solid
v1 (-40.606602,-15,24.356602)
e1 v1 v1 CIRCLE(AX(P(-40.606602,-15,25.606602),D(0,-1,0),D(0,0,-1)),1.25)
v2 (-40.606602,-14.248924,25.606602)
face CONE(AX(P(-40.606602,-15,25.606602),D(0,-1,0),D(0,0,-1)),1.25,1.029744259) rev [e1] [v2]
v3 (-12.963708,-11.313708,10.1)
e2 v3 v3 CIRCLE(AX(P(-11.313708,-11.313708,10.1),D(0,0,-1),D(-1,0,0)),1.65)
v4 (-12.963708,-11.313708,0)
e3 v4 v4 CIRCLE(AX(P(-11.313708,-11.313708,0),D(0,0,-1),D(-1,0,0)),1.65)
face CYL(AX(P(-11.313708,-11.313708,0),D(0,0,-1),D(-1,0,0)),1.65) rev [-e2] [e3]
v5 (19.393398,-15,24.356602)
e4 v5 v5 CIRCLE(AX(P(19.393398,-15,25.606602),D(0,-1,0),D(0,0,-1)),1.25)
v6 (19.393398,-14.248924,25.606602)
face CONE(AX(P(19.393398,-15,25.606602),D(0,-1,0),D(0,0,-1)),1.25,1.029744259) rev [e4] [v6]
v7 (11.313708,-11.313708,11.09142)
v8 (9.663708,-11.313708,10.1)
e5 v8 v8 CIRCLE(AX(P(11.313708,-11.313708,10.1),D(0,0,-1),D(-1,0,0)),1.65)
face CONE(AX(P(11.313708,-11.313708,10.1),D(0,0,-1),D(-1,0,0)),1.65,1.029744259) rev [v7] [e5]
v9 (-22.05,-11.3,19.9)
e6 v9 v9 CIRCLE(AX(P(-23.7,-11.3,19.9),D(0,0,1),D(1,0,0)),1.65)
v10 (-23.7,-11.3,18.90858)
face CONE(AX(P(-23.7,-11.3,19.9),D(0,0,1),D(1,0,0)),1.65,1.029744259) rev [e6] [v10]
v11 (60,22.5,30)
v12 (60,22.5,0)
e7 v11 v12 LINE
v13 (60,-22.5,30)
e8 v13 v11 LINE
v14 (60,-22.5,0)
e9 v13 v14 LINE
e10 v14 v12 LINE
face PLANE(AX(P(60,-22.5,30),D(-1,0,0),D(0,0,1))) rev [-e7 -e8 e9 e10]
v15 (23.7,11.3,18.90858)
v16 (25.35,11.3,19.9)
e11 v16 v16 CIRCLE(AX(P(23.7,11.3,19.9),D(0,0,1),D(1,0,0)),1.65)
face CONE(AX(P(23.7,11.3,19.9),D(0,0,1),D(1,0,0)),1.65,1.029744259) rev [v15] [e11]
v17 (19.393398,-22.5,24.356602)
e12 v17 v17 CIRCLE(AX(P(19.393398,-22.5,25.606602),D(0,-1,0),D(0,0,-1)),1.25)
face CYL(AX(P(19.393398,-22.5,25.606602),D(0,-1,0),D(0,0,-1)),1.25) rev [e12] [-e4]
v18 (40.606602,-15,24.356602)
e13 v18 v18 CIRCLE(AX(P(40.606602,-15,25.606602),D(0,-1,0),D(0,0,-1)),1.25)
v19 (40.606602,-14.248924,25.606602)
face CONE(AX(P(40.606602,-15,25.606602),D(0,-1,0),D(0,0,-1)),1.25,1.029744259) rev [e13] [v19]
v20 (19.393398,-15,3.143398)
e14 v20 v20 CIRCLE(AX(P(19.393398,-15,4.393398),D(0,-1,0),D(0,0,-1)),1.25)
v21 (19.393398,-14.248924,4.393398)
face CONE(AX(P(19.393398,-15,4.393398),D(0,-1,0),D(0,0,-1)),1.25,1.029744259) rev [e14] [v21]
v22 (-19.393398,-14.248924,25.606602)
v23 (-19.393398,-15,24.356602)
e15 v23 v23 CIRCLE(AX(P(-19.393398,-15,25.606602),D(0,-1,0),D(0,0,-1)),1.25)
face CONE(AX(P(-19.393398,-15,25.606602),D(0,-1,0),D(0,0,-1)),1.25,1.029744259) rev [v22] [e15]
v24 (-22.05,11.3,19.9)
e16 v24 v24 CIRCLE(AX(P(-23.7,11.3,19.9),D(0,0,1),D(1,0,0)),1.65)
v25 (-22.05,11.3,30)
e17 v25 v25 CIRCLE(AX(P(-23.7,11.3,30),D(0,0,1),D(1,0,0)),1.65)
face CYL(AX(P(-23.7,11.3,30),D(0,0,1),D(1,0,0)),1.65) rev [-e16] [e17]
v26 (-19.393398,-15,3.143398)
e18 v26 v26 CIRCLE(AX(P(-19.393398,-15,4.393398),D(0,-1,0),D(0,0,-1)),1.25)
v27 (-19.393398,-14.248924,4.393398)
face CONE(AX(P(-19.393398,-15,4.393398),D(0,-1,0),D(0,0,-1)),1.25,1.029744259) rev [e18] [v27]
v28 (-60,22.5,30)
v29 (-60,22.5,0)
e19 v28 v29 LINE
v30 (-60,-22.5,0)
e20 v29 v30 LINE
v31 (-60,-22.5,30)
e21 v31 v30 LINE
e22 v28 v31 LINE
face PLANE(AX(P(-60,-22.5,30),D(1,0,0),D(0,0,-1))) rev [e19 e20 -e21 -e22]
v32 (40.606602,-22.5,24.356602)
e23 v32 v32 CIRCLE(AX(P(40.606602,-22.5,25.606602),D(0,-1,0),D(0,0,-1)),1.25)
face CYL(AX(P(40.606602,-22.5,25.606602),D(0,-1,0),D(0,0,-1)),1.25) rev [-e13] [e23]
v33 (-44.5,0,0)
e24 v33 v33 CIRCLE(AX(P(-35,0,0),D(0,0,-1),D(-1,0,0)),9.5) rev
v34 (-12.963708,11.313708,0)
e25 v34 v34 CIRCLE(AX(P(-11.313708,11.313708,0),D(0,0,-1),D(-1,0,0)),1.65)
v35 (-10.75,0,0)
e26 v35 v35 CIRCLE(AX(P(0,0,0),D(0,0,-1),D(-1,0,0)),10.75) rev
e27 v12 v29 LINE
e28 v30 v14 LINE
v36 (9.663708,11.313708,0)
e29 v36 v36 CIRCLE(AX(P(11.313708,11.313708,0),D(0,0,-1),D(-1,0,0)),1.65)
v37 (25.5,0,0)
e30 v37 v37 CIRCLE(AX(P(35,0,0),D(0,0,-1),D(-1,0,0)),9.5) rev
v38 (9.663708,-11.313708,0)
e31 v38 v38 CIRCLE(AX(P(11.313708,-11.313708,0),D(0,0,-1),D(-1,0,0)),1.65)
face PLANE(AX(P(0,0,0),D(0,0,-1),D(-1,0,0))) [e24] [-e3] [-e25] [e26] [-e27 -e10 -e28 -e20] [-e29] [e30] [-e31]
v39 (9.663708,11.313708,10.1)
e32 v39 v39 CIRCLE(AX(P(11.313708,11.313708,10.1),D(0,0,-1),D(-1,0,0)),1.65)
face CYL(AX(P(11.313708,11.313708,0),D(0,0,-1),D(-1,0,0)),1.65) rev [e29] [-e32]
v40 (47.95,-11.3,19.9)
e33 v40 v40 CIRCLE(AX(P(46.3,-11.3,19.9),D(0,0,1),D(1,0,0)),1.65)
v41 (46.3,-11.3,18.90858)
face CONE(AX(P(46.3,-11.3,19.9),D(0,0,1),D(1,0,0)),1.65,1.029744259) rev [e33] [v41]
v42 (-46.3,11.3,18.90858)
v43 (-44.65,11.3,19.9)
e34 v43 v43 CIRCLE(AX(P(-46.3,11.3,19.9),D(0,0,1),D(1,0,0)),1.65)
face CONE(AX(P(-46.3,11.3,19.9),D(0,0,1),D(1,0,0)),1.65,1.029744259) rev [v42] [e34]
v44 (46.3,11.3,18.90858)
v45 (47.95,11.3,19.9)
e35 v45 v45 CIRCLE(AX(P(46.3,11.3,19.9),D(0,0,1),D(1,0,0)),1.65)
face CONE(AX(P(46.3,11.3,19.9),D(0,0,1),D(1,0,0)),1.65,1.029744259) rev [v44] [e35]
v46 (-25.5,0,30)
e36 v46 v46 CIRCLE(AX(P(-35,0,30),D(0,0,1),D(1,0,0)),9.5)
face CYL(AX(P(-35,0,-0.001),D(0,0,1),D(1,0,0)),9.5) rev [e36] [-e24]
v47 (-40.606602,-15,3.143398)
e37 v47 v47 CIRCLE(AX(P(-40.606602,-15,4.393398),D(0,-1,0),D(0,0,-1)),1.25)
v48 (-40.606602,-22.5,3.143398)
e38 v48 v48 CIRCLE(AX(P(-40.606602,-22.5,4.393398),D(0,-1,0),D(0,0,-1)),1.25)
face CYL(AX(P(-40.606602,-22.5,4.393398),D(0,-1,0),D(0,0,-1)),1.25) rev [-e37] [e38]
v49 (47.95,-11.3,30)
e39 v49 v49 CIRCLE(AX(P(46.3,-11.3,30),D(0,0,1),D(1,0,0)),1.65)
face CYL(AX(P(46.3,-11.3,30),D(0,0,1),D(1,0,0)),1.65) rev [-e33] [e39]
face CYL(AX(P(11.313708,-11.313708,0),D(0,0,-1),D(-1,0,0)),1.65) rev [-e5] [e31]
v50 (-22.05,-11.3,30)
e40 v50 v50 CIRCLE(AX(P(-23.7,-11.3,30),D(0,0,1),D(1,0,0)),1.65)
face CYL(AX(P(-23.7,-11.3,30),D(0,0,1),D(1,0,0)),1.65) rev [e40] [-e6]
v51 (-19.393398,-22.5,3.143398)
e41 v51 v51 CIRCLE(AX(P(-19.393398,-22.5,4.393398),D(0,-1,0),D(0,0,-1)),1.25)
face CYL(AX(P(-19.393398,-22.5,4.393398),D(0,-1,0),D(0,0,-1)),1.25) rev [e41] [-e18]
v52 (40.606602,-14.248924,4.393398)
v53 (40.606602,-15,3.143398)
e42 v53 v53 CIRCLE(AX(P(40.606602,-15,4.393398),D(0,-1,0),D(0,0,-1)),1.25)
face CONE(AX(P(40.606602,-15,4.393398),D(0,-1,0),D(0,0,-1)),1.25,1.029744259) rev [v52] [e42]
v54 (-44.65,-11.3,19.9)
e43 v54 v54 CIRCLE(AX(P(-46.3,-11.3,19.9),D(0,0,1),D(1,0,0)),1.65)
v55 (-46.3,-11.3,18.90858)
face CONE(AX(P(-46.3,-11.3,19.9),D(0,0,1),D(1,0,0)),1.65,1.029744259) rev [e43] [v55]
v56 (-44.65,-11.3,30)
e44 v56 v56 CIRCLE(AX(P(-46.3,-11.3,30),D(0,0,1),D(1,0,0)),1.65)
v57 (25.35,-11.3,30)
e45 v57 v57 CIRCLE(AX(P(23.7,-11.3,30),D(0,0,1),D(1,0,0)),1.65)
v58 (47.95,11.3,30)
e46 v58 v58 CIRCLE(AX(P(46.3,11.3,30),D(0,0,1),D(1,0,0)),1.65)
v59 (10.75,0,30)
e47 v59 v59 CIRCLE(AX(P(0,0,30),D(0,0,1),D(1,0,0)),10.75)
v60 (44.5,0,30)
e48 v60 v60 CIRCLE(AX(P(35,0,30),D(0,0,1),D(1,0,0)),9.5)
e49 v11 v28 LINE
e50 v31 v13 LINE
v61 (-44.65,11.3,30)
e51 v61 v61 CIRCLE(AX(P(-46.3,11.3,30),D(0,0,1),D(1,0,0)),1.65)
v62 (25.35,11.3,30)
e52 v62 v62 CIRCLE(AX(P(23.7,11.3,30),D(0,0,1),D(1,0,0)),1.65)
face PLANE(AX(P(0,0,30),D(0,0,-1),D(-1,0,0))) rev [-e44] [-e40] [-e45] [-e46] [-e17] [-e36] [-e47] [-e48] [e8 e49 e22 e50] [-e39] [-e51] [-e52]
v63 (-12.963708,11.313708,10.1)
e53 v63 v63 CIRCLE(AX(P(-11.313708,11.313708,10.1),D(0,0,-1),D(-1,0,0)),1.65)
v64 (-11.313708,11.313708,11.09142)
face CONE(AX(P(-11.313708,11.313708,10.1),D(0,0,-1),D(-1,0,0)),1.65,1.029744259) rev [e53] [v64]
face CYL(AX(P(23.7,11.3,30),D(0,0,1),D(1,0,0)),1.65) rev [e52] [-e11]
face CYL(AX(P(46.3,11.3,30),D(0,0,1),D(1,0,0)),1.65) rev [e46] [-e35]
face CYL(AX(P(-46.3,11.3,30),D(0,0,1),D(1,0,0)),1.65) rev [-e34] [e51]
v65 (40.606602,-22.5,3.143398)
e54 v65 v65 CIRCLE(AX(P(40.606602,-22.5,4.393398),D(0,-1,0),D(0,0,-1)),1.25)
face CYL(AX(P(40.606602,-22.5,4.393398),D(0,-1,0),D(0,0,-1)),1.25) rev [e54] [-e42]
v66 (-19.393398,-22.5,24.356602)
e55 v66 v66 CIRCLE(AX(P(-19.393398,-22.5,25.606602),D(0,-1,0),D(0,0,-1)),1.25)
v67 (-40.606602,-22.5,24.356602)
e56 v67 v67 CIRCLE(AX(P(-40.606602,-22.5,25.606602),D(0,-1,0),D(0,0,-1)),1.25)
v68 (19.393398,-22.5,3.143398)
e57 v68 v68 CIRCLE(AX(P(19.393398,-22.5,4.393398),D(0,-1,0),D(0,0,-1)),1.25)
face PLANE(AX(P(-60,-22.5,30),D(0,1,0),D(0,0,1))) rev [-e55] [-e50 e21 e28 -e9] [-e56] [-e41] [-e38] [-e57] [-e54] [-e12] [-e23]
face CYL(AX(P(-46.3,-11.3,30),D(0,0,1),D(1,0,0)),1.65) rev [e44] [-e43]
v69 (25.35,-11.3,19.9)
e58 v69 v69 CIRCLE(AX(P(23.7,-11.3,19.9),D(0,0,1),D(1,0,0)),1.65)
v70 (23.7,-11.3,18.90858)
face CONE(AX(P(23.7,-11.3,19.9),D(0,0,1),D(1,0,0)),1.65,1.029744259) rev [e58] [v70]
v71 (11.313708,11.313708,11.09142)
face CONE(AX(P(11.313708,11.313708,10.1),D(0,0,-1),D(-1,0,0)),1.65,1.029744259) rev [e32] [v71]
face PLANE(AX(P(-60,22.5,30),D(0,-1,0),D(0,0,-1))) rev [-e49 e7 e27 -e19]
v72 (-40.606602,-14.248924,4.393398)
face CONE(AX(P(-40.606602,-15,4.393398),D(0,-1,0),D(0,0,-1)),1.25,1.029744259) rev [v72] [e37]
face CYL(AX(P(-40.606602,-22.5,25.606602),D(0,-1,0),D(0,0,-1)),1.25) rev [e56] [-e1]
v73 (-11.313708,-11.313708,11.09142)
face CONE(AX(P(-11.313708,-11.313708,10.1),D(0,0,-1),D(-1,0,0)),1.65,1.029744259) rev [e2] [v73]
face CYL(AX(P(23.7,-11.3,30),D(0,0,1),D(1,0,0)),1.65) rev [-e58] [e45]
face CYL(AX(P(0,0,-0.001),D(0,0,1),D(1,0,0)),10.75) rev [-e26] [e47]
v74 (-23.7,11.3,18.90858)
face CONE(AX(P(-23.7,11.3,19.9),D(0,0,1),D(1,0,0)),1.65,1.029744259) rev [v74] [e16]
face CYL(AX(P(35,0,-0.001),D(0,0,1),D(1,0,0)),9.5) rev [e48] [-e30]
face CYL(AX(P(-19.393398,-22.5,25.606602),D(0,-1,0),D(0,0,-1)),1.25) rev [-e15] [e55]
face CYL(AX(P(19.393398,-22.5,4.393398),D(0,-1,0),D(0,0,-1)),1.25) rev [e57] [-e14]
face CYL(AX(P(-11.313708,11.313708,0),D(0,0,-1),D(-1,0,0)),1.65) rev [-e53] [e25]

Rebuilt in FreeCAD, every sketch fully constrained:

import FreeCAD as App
import Part
import Sketcher
from FreeCAD import Vector


def add_polygon(sketch, points):
    """Adds a closed chain of lines whose ends are joined by coincident constraints."""
    first, n = sketch.GeometryCount, len(points)
    for a, b in zip(points, points[1:] + points[:1]):
        sketch.addGeometry(Part.LineSegment(App.Vector(*a, 0), App.Vector(*b, 0)), False)
    for i in range(n):
        sketch.addConstraint(Sketcher.Constraint("Coincident", first + i, 2, first + (i + 1) % n, 1))

doc = App.newDocument("Part")
params = doc.addObject("Spreadsheet::Sheet", "Params")
for row, (alias, value) in enumerate([
    ("sketch1_width", "120 mm"),
    ("sketch1_height", "45 mm"),
    ("pad1_length", "30 mm"),
    ("sketch2_diameter", "19 mm"),
    ("sketch3_diameter", "19 mm"),
    ("sketch4_diameter", "21.5 mm"),
    ("sketch5_diameter", "3.3 mm"),
    ("hole_diameter", "3.3 mm"),
    ("hole_depth", "10.1 mm"),
    ("sketch6_diameter", "3.3 mm"),
    ("hole2_diameter", "3.3 mm"),
    ("hole2_depth", "10.1 mm"),
    ("sketch7_diameter", "2.5 mm"),
    ("hole3_diameter", "2.5 mm"),
    ("hole3_depth", "7.5 mm"),
], start=1):
    params.set(f"A{row}", alias)
    params.set(f"B{row}", "=" + value)
    params.setAlias(f"B{row}", alias)

body = doc.addObject("PartDesign::Body", "Body")

sketch1 = body.newObject("Sketcher::SketchObject", "Sketch")
sketch1.AttachmentSupport = (doc.getObject("XY_Plane"), [""])
sketch1.MapMode = "FlatFace"
add_polygon(sketch1, [(-60, 22.5), (-60, -22.5), (60, -22.5), (60, 22.5)])
sketch1.addConstraint(Sketcher.Constraint("Vertical", 0))
sketch1.addConstraint(Sketcher.Constraint("Horizontal", 1))
sketch1.addConstraint(Sketcher.Constraint("Vertical", 2))
sketch1.addConstraint(Sketcher.Constraint("Horizontal", 3))
sketch1.addConstraint(Sketcher.Constraint("Symmetric", 0, 2, 2, 2, -1, 1))
sketch1.addConstraint(Sketcher.Constraint("DistanceX", 1, 1, 1, 2, 120.0))
sketch1.addConstraint(Sketcher.Constraint("DistanceY", 0, 2, 0, 1, 45.0))
sketch1.setExpression("Constraints[9]", "Params.sketch1_width")
sketch1.setExpression("Constraints[10]", "Params.sketch1_height")
pad1 = body.newObject("PartDesign::Pad", "Pad")
pad1.Profile = sketch1
pad1.setExpression("Length", "Params.pad1_length")

sketch2 = body.newObject("Sketcher::SketchObject", "Sketch001")
sketch2.AttachmentSupport = (doc.getObject("XY_Plane"), [""])
sketch2.MapMode = "FlatFace"
sketch2.AttachmentOffset = App.Placement(Vector(0, 0, 30), App.Rotation())
sketch2.addGeometry(Part.Circle(Vector(-35, 0, 0), Vector(0, 0, 1), 9.5), False)
sketch2.addConstraint(Sketcher.Constraint("PointOnObject", 0, 3, -1))
sketch2.addConstraint(Sketcher.Constraint("Diameter", 0, 19.0))
sketch2.addConstraint(Sketcher.Constraint("DistanceX", 0, 3, -1, 1, 35.0))
sketch2.setExpression("Constraints[1]", "Params.sketch2_diameter")
pocket1 = body.newObject("PartDesign::Pocket", "Pocket")
pocket1.Profile = sketch2
pocket1.Type = "UpToFirst"

sketch3 = body.newObject("Sketcher::SketchObject", "Sketch002")
sketch3.AttachmentSupport = (doc.getObject("XY_Plane"), [""])
sketch3.MapMode = "FlatFace"
sketch3.AttachmentOffset = App.Placement(Vector(0, 0, 30), App.Rotation())
sketch3.addGeometry(Part.Circle(Vector(35, 0, 0), Vector(0, 0, 1), 9.5), False)
sketch3.addConstraint(Sketcher.Constraint("PointOnObject", 0, 3, -1))
sketch3.addConstraint(Sketcher.Constraint("Diameter", 0, 19.0))
sketch3.addConstraint(Sketcher.Constraint("DistanceX", -1, 1, 0, 3, 35.0))
sketch3.setExpression("Constraints[1]", "Params.sketch3_diameter")
pocket2 = body.newObject("PartDesign::Pocket", "Pocket001")
pocket2.Profile = sketch3
pocket2.Type = "UpToFirst"

sketch4 = body.newObject("Sketcher::SketchObject", "Sketch003")
sketch4.AttachmentSupport = (doc.getObject("XY_Plane"), [""])
sketch4.MapMode = "FlatFace"
sketch4.AttachmentOffset = App.Placement(Vector(0, 0, 30), App.Rotation())
sketch4.addGeometry(Part.Circle(Vector(0, 0, 0), Vector(0, 0, 1), 10.75), False)
sketch4.addConstraint(Sketcher.Constraint("Coincident", 0, 3, -1, 1))
sketch4.addConstraint(Sketcher.Constraint("Diameter", 0, 21.5))
sketch4.setExpression("Constraints[1]", "Params.sketch4_diameter")
pocket3 = body.newObject("PartDesign::Pocket", "Pocket002")
pocket3.Profile = sketch4
pocket3.Type = "UpToFirst"

sketch5 = body.newObject("Sketcher::SketchObject", "Sketch004")
sketch5.AttachmentSupport = (doc.getObject("XY_Plane"), [""])
sketch5.MapMode = "FlatFace"
sketch5.AttachmentOffset = App.Placement(Vector(0, 0, 30), App.Rotation())
sketch5.addGeometry(Part.Circle(Vector(23.7, 11.3, 0), Vector(0, 0, 1), 1.65), False)
sketch5.addGeometry(Part.Circle(Vector(-35, 0, 0), Vector(0, 0, 1), 1.65), False)
sketch5.addGeometry(Part.Circle(Vector(-23.7, 11.3, 0), Vector(0, 0, 1), 1.65), False)
sketch5.addGeometry(Part.Circle(Vector(-46.3, -11.3, 0), Vector(0, 0, 1), 1.65), False)
sketch5.addGeometry(Part.Circle(Vector(-46.3, 11.3, 0), Vector(0, 0, 1), 1.65), False)
sketch5.addGeometry(Part.Circle(Vector(-23.7, -11.3, 0), Vector(0, 0, 1), 1.65), False)
sketch5.addGeometry(Part.Circle(Vector(46.3, 11.3, 0), Vector(0, 0, 1), 1.65), False)
sketch5.addGeometry(Part.Circle(Vector(46.3, -11.3, 0), Vector(0, 0, 1), 1.65), False)
sketch5.addGeometry(Part.Circle(Vector(23.7, -11.3, 0), Vector(0, 0, 1), 1.65), False)
sketch5.addConstraint(Sketcher.Constraint("Equal", 0, 1))
sketch5.addConstraint(Sketcher.Constraint("Equal", 1, 2))
sketch5.addConstraint(Sketcher.Constraint("Equal", 2, 3))
sketch5.addConstraint(Sketcher.Constraint("Equal", 3, 4))
sketch5.addConstraint(Sketcher.Constraint("Equal", 4, 5))
sketch5.addConstraint(Sketcher.Constraint("Equal", 5, 6))
sketch5.addConstraint(Sketcher.Constraint("Equal", 6, 7))
sketch5.addConstraint(Sketcher.Constraint("Equal", 7, 8))
sketch5.addConstraint(Sketcher.Constraint("Symmetric", 0, 3, 5, 3, -1, 1))
sketch5.addConstraint(Sketcher.Constraint("Symmetric", 3, 3, 6, 3, -1, 1))
sketch5.addConstraint(Sketcher.Constraint("Symmetric", 4, 3, 7, 3, -1, 1))
sketch5.addConstraint(Sketcher.Constraint("Symmetric", 2, 3, 8, 3, -1, 1))
sketch5.addConstraint(Sketcher.Constraint("Symmetric", 0, 3, 2, 3, -2))
sketch5.addConstraint(Sketcher.Constraint("Symmetric", 4, 3, 6, 3, -2))
sketch5.addConstraint(Sketcher.Constraint("PointOnObject", 1, 3, -1))
sketch5.addConstraint(Sketcher.Constraint("Horizontal", 2, 3, 4, 3))
sketch5.addConstraint(Sketcher.Constraint("Diameter", 0, 3.3))
sketch5.addConstraint(Sketcher.Constraint("DistanceX", 1, 3, -1, 1, 35.0))
sketch5.addConstraint(Sketcher.Constraint("DistanceX", 3, 3, 0, 3, 70.0))
sketch5.addConstraint(Sketcher.Constraint("DistanceX", -1, 1, 0, 3, 23.7))
sketch5.addConstraint(Sketcher.Constraint("DistanceY", -1, 1, 0, 3, 11.3))
sketch5.setExpression("Constraints[16]", "Params.sketch5_diameter")
doc.recompute()
hole = body.newObject("PartDesign::Hole", "Hole")
hole.Profile = sketch5
hole.ThreadType = "None"
hole.setExpression("Diameter", "Params.hole_diameter")
hole.DepthType = "Dimension"
hole.setExpression("Depth", "Params.hole_depth")
hole.DrillPoint = "Angled"
hole.DrillPointAngle = 118

sketch6 = body.newObject("Sketcher::SketchObject", "Sketch005")
sketch6.AttachmentSupport = (doc.getObject("XY_Plane"), [""])
sketch6.MapMode = "FlatFace"
sketch6.addGeometry(Part.Circle(Vector(-11.313708, 11.313708, 0), Vector(0, 0, 1), 1.65), False)
sketch6.addGeometry(Part.Circle(Vector(11.313708, -11.313708, 0), Vector(0, 0, 1), 1.65), False)
sketch6.addGeometry(Part.Circle(Vector(11.313708, 11.313708, 0), Vector(0, 0, 1), 1.65), False)
sketch6.addGeometry(Part.Circle(Vector(-11.313708, -11.313708, 0), Vector(0, 0, 1), 1.65), False)
sketch6.addConstraint(Sketcher.Constraint("Equal", 0, 1))
sketch6.addConstraint(Sketcher.Constraint("Equal", 1, 2))
sketch6.addConstraint(Sketcher.Constraint("Equal", 2, 3))
sketch6.addConstraint(Sketcher.Constraint("Symmetric", 0, 3, 1, 3, -1, 1))
sketch6.addConstraint(Sketcher.Constraint("Symmetric", 2, 3, 3, 3, -1, 1))
sketch6.addConstraint(Sketcher.Constraint("Symmetric", 0, 3, 2, 3, -2))
sketch6.addConstraint(Sketcher.Constraint("Diameter", 0, 3.3))
sketch6.addConstraint(Sketcher.Constraint("DistanceX", 0, 3, -1, 1, 11.313708))
sketch6.addConstraint(Sketcher.Constraint("DistanceY", -1, 1, 0, 3, 11.313708))
sketch6.setExpression("Constraints[6]", "Params.sketch6_diameter")
doc.recompute()
hole2 = body.newObject("PartDesign::Hole", "Hole001")
hole2.Profile = sketch6
hole2.ThreadType = "None"
hole2.setExpression("Diameter", "Params.hole2_diameter")
hole2.DepthType = "Dimension"
hole2.setExpression("Depth", "Params.hole2_depth")
hole2.DrillPoint = "Angled"
hole2.DrillPointAngle = 118
hole2.Reversed = True

sketch7 = body.newObject("Sketcher::SketchObject", "Sketch006")
sketch7.AttachmentSupport = (doc.getObject("XZ_Plane"), [""])
sketch7.MapMode = "FlatFace"
sketch7.AttachmentOffset = App.Placement(Vector(0, 0, 22.5), App.Rotation())
sketch7.addGeometry(Part.Circle(Vector(40.606602, 4.393398, 0), Vector(0, 0, 1), 1.25), False)
sketch7.addGeometry(Part.Circle(Vector(19.393398, 4.393398, 0), Vector(0, 0, 1), 1.25), False)
sketch7.addGeometry(Part.Circle(Vector(19.393398, 25.606602, 0), Vector(0, 0, 1), 1.25), False)
sketch7.addGeometry(Part.Circle(Vector(40.606602, 25.606602, 0), Vector(0, 0, 1), 1.25), False)
sketch7.addGeometry(Part.Circle(Vector(-19.393398, 4.393398, 0), Vector(0, 0, 1), 1.25), False)
sketch7.addGeometry(Part.Circle(Vector(-40.606602, 4.393398, 0), Vector(0, 0, 1), 1.25), False)
sketch7.addGeometry(Part.Circle(Vector(-19.393398, 25.606602, 0), Vector(0, 0, 1), 1.25), False)
sketch7.addGeometry(Part.Circle(Vector(-40.606602, 25.606602, 0), Vector(0, 0, 1), 1.25), False)
sketch7.addConstraint(Sketcher.Constraint("Equal", 0, 1))
sketch7.addConstraint(Sketcher.Constraint("Equal", 1, 2))
sketch7.addConstraint(Sketcher.Constraint("Equal", 2, 3))
sketch7.addConstraint(Sketcher.Constraint("Equal", 3, 4))
sketch7.addConstraint(Sketcher.Constraint("Equal", 4, 5))
sketch7.addConstraint(Sketcher.Constraint("Equal", 5, 6))
sketch7.addConstraint(Sketcher.Constraint("Equal", 6, 7))
sketch7.addConstraint(Sketcher.Constraint("Symmetric", 1, 3, 4, 3, -2))
sketch7.addConstraint(Sketcher.Constraint("Symmetric", 0, 3, 5, 3, -2))
sketch7.addConstraint(Sketcher.Constraint("Symmetric", 2, 3, 6, 3, -2))
sketch7.addConstraint(Sketcher.Constraint("Symmetric", 3, 3, 7, 3, -2))
sketch7.addConstraint(Sketcher.Constraint("Horizontal", 0, 3, 1, 3))
sketch7.addConstraint(Sketcher.Constraint("Horizontal", 2, 3, 3, 3))
sketch7.addConstraint(Sketcher.Constraint("Vertical", 1, 3, 2, 3))
sketch7.addConstraint(Sketcher.Constraint("Vertical", 0, 3, 3, 3))
sketch7.addConstraint(Sketcher.Constraint("Diameter", 0, 2.5))
sketch7.addConstraint(Sketcher.Constraint("DistanceX", 4, 3, 0, 3, 60.0))
sketch7.addConstraint(Sketcher.Constraint("DistanceX", -1, 1, 0, 3, 40.606602))
sketch7.addConstraint(Sketcher.Constraint("DistanceY", -1, 1, 0, 3, 4.393398))
sketch7.addConstraint(Sketcher.Constraint("DistanceY", -1, 1, 2, 3, 25.606602))
sketch7.setExpression("Constraints[15]", "Params.sketch7_diameter")
doc.recompute()
hole3 = body.newObject("PartDesign::Hole", "Hole002")
hole3.Profile = sketch7
hole3.ThreadType = "None"
hole3.setExpression("Diameter", "Params.hole3_diameter")
hole3.DepthType = "Dimension"
hole3.setExpression("Depth", "Params.hole3_depth")
hole3.DrillPoint = "Angled"
hole3.DrillPointAngle = 118

doc.recompute()
